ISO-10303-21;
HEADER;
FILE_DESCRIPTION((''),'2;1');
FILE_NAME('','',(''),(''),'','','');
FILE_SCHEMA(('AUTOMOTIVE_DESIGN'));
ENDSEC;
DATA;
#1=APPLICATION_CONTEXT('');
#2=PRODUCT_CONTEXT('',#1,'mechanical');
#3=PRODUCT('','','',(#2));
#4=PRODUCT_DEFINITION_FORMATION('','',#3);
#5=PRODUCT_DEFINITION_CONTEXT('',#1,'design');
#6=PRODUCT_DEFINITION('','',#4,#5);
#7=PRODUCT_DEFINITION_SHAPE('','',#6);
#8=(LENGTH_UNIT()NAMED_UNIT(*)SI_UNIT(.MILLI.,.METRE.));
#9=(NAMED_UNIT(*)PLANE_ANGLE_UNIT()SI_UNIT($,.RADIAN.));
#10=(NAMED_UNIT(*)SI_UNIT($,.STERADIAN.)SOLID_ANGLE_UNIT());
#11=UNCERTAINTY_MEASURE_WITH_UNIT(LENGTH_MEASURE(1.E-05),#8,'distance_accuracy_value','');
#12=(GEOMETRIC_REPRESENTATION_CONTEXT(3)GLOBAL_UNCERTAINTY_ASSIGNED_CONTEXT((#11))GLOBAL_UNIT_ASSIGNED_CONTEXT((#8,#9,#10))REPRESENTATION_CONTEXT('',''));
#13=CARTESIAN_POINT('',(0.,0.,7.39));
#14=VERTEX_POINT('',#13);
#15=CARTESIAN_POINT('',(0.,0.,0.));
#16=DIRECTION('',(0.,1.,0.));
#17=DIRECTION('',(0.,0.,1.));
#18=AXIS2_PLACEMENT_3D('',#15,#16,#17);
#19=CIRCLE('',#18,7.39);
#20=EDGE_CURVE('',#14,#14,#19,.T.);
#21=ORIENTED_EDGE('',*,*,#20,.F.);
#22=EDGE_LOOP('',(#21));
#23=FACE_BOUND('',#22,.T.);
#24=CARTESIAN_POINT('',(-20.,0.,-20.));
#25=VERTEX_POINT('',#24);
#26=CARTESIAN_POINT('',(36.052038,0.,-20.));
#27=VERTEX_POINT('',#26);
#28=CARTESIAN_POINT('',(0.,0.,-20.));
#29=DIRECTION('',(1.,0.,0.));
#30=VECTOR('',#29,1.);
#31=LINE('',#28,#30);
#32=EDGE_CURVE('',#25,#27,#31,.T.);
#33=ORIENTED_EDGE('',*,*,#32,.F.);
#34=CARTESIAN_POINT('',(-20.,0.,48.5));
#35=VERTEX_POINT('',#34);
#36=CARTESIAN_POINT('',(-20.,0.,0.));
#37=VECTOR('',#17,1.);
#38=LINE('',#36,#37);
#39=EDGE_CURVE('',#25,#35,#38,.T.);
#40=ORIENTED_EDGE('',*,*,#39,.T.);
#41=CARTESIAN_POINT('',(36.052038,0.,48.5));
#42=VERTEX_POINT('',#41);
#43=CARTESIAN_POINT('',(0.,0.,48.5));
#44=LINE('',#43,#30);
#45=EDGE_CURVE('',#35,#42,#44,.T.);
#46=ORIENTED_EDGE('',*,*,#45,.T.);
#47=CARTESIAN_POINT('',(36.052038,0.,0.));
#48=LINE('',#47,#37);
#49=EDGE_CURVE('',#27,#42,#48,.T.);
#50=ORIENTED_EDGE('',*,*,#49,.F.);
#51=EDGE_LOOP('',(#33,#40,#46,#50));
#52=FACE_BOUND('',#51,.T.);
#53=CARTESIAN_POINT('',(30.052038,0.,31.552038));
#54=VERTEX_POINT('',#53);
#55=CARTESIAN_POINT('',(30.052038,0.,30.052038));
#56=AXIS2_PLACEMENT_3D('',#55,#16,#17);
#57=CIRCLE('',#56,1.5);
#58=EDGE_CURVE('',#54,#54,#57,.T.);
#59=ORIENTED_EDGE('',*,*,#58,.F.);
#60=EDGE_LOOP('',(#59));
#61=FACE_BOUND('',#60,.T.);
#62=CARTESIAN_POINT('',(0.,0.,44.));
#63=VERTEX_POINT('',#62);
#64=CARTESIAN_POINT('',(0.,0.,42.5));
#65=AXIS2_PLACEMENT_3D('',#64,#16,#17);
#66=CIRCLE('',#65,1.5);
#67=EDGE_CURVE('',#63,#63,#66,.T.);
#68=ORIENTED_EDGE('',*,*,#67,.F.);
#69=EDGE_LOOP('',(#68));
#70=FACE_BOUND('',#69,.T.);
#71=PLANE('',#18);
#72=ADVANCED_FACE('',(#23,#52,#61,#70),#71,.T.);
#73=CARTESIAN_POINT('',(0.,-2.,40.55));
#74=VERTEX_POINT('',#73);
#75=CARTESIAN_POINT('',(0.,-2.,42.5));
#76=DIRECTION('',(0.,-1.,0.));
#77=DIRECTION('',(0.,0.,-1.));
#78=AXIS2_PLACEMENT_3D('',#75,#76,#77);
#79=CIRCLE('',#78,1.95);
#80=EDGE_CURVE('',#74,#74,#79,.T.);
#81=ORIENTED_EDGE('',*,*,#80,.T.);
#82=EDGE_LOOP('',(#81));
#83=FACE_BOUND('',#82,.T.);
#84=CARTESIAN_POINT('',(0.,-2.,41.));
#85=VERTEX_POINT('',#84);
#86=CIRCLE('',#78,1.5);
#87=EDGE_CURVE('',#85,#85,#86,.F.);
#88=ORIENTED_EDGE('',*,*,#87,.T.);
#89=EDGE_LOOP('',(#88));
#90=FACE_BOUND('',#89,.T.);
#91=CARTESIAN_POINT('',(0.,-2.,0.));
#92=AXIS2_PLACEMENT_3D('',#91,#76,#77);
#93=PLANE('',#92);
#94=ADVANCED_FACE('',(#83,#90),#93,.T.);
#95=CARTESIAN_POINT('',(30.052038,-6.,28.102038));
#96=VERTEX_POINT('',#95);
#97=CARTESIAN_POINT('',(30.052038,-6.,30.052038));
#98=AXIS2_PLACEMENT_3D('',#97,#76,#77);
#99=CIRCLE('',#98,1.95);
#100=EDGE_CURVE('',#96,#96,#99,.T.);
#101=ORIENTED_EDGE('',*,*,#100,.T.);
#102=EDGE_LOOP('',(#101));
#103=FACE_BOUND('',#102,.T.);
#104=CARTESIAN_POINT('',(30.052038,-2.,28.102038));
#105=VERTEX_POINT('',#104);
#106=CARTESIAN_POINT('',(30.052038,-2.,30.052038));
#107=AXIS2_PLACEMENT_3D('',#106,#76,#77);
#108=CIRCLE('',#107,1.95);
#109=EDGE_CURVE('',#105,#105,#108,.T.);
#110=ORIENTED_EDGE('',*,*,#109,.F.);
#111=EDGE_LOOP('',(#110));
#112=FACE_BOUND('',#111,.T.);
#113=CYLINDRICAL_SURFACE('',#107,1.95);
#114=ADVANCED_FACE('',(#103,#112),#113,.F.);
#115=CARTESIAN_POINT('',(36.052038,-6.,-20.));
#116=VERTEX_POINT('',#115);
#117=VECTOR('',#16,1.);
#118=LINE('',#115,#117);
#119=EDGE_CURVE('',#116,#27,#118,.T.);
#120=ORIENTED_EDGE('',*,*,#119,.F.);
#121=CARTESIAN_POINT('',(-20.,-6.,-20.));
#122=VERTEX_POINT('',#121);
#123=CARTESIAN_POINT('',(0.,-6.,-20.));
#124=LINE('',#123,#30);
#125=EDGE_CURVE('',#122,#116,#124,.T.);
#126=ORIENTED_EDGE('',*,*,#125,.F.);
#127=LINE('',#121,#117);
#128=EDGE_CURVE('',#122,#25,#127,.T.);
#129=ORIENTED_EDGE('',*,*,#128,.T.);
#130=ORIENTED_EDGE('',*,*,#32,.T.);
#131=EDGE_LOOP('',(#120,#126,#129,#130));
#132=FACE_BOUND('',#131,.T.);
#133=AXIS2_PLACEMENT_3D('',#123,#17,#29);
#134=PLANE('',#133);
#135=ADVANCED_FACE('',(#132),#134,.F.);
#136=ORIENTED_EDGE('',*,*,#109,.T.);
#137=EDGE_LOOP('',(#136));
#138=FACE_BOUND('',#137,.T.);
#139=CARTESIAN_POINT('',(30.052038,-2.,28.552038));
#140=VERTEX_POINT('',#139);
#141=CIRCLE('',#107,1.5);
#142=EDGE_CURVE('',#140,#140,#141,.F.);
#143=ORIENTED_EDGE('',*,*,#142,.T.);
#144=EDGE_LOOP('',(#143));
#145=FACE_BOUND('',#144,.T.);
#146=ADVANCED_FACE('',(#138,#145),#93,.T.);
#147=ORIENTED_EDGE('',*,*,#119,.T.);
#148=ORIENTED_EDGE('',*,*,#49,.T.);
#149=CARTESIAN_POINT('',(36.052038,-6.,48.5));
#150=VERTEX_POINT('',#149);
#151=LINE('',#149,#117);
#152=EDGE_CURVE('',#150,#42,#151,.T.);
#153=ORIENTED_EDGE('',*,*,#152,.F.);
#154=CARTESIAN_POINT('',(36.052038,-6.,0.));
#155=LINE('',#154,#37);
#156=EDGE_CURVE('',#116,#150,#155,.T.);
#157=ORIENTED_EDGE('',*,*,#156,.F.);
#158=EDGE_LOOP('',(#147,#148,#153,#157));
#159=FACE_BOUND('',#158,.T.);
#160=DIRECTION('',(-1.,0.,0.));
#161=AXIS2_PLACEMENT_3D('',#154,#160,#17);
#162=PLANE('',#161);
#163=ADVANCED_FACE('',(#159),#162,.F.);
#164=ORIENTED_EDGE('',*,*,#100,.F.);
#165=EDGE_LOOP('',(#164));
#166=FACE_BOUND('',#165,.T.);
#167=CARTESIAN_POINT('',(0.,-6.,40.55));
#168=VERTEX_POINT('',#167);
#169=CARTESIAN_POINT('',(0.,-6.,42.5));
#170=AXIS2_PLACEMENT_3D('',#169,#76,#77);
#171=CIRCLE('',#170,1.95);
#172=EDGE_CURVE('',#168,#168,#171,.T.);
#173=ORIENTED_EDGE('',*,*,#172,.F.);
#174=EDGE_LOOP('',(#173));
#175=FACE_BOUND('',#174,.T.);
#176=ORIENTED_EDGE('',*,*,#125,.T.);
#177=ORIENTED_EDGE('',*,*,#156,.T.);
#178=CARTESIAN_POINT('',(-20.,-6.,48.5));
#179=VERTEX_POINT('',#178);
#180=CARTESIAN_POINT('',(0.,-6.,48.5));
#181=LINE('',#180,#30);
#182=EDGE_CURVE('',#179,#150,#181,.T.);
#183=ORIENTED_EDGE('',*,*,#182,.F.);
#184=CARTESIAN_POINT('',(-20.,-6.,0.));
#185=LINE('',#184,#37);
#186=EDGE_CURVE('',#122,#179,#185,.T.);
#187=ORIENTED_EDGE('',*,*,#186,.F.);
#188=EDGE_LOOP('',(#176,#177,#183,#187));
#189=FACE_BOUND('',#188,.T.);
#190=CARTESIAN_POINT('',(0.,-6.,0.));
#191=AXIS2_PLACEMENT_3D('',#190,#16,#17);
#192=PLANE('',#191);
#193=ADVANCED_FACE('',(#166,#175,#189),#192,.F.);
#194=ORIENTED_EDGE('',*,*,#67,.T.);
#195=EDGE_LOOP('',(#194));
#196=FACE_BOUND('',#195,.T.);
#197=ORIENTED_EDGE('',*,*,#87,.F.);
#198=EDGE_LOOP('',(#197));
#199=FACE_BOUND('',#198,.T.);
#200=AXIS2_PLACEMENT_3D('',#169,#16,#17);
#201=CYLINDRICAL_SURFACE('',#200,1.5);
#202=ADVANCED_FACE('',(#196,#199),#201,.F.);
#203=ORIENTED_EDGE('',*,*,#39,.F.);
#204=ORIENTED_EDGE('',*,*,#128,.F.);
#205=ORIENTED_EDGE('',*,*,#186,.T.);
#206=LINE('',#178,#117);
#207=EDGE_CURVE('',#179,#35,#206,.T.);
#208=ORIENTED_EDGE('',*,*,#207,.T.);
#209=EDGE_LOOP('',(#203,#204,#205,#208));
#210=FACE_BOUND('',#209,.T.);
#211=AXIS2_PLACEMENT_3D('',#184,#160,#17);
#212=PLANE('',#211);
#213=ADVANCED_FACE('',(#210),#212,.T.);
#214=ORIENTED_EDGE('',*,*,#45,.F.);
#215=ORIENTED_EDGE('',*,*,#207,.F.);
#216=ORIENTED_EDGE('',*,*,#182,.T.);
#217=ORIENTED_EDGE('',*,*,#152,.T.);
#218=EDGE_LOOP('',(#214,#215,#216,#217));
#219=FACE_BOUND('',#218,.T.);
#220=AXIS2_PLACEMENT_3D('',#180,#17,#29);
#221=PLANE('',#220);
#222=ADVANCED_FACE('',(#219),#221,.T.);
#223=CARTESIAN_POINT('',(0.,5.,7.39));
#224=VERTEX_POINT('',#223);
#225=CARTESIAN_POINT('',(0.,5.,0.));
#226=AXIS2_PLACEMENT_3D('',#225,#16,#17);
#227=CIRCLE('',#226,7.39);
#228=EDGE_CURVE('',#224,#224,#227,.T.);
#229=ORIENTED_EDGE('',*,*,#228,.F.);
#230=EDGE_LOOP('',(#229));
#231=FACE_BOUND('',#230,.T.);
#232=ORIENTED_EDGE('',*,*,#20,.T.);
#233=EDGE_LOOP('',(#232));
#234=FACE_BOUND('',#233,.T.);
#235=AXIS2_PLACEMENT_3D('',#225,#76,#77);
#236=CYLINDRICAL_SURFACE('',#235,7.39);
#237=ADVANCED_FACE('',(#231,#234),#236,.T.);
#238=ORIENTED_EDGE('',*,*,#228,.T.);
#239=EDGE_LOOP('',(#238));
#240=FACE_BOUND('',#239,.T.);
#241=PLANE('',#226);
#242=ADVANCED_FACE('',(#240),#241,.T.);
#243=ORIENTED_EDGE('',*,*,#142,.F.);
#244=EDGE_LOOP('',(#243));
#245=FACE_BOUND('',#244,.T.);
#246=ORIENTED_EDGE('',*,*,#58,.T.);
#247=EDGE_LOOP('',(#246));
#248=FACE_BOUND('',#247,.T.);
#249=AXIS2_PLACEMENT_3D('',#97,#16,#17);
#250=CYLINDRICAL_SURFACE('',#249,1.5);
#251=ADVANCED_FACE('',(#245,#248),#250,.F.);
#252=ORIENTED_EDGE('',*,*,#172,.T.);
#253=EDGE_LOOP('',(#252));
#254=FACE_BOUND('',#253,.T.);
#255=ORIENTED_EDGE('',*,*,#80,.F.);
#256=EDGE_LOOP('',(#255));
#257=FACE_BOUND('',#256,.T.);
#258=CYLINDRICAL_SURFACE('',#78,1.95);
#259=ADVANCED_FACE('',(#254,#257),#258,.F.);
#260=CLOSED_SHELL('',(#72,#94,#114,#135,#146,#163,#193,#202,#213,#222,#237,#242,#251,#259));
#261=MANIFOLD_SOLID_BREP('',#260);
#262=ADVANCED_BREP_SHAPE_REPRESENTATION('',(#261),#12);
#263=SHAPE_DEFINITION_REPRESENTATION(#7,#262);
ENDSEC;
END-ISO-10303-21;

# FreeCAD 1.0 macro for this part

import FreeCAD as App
import Part
import Sketcher

V = App.Vector

doc = App.newDocument("Part")
body = doc.addObject("PartDesign::Body", "Body")

sketch1 = body.newObject("Sketcher::SketchObject", "Sketch")
sketch1.AttachmentSupport = (doc.getObject("XZ_Plane"), [""])
sketch1.MapMode = "FlatFace"
sketch1.addGeometry([
    Part.LineSegment(V(-20, -20, 0), V(-20, 48.5, 0)),
    Part.LineSegment(V(-20, 48.5, 0), V(36.1, 48.5, 0)),
    Part.LineSegment(V(36.1, 48.5, 0), V(36.1, -20, 0)),
    Part.LineSegment(V(36.1, -20, 0), V(-20, -20, 0)),
    Part.Circle(V(0, 42.5, 0), V(0, 0, 1), 1.5),
    Part.Circle(V(30.1, 30.1, 0), V(0, 0, 1), 1.5),
], False)
sketch1.addConstraint([
    Sketcher.Constraint("Coincident", 0, 2, 1, 1),
    Sketcher.Constraint("Coincident", 1, 2, 2, 1),
    Sketcher.Constraint("Coincident", 2, 2, 3, 1),
    Sketcher.Constraint("Coincident", 3, 2, 0, 1),
    Sketcher.Constraint("Vertical", 0),
    Sketcher.Constraint("Horizontal", 1),
    Sketcher.Constraint("Vertical", 2),
    Sketcher.Constraint("Horizontal", 3),
    Sketcher.Constraint("Equal", 4, 5),
    Sketcher.Constraint("PointOnObject", 4, 3, -2),
    Sketcher.Constraint("Diameter", 4, 3.0),
    Sketcher.Constraint("DistanceY", 0, 1, 0, 2, 68.5),
    Sketcher.Constraint("DistanceX", 0, 2, -1, 1, 20.0),
    Sketcher.Constraint("DistanceY", 2, 2, -1, 1, 20.0),
    Sketcher.Constraint("DistanceY", 4, 3, 0, 2, 6.0),
    Sketcher.Constraint("DistanceX", 5, 3, 1, 2, 6.0),
    Sketcher.Constraint("DistanceX", 1, 1, 1, 2, 56.052038),
    Sketcher.Constraint("DistanceY", -1, 1, 5, 3, 30.052038),
])
pad1 = body.newObject("PartDesign::Pad", "Pad")
pad1.Profile = sketch1
pad1.Length = 6

sketch2 = body.newObject("Sketcher::SketchObject", "Sketch001")
sketch2.AttachmentSupport = (doc.getObject("XZ_Plane"), [""])
sketch2.MapMode = "FlatFace"
sketch2.addGeometry(Part.Circle(V(0, 0, 0), V(0, 0, 1), 7), False)
sketch2.addConstraint([
    Sketcher.Constraint("Coincident", 0, 3, -1, 1),
    Sketcher.Constraint("Diameter", 0, 14.78),
])
pad2 = body.newObject("PartDesign::Pad", "Pad001")
pad2.Profile = sketch2
pad2.Length = 5
pad2.Reversed = True

sketch3 = body.newObject("Sketcher::SketchObject", "Sketch002")
sketch3.AttachmentSupport = (doc.getObject("XZ_Plane"), [""])
sketch3.MapMode = "FlatFace"
sketch3.AttachmentOffset = App.Placement(V(0, 0, 2), App.Rotation())
sketch3.addGeometry([
    Part.Circle(V(0, 42.5, 0), V(0, 0, 1), 1.9),
    Part.Circle(V(0, 42.5, 0), V(0, 0, 1), 1.5),
    Part.Circle(V(30.1, 30.1, 0), V(0, 0, 1), 1.9),
    Part.Circle(V(30.1, 30.1, 0), V(0, 0, 1), 1.5),
], False)
sketch3.addConstraint([
    Sketcher.Constraint("Coincident", 1, 3, 0, 3),
    Sketcher.Constraint("Coincident", 3, 3, 2, 3),
    Sketcher.Constraint("Equal", 0, 2),
    Sketcher.Constraint("Equal", 1, 3),
    Sketcher.Constraint("PointOnObject", 0, 3, -2),
    Sketcher.Constraint("Diameter", 1, 3.0),
    Sketcher.Constraint("Diameter", 0, 3.9),
    Sketcher.Constraint("DistanceY", -1, 1, 0, 3, 42.5),
    Sketcher.Constraint("DistanceX", -1, 1, 2, 3, 30.052038),
    Sketcher.Constraint("DistanceY", -1, 1, 2, 3, 30.052038),
])
pocket1 = body.newObject("PartDesign::Pocket", "Pocket")
pocket1.Profile = sketch3
pocket1.Length = 4
pocket1.Reversed = True

doc.recompute()
